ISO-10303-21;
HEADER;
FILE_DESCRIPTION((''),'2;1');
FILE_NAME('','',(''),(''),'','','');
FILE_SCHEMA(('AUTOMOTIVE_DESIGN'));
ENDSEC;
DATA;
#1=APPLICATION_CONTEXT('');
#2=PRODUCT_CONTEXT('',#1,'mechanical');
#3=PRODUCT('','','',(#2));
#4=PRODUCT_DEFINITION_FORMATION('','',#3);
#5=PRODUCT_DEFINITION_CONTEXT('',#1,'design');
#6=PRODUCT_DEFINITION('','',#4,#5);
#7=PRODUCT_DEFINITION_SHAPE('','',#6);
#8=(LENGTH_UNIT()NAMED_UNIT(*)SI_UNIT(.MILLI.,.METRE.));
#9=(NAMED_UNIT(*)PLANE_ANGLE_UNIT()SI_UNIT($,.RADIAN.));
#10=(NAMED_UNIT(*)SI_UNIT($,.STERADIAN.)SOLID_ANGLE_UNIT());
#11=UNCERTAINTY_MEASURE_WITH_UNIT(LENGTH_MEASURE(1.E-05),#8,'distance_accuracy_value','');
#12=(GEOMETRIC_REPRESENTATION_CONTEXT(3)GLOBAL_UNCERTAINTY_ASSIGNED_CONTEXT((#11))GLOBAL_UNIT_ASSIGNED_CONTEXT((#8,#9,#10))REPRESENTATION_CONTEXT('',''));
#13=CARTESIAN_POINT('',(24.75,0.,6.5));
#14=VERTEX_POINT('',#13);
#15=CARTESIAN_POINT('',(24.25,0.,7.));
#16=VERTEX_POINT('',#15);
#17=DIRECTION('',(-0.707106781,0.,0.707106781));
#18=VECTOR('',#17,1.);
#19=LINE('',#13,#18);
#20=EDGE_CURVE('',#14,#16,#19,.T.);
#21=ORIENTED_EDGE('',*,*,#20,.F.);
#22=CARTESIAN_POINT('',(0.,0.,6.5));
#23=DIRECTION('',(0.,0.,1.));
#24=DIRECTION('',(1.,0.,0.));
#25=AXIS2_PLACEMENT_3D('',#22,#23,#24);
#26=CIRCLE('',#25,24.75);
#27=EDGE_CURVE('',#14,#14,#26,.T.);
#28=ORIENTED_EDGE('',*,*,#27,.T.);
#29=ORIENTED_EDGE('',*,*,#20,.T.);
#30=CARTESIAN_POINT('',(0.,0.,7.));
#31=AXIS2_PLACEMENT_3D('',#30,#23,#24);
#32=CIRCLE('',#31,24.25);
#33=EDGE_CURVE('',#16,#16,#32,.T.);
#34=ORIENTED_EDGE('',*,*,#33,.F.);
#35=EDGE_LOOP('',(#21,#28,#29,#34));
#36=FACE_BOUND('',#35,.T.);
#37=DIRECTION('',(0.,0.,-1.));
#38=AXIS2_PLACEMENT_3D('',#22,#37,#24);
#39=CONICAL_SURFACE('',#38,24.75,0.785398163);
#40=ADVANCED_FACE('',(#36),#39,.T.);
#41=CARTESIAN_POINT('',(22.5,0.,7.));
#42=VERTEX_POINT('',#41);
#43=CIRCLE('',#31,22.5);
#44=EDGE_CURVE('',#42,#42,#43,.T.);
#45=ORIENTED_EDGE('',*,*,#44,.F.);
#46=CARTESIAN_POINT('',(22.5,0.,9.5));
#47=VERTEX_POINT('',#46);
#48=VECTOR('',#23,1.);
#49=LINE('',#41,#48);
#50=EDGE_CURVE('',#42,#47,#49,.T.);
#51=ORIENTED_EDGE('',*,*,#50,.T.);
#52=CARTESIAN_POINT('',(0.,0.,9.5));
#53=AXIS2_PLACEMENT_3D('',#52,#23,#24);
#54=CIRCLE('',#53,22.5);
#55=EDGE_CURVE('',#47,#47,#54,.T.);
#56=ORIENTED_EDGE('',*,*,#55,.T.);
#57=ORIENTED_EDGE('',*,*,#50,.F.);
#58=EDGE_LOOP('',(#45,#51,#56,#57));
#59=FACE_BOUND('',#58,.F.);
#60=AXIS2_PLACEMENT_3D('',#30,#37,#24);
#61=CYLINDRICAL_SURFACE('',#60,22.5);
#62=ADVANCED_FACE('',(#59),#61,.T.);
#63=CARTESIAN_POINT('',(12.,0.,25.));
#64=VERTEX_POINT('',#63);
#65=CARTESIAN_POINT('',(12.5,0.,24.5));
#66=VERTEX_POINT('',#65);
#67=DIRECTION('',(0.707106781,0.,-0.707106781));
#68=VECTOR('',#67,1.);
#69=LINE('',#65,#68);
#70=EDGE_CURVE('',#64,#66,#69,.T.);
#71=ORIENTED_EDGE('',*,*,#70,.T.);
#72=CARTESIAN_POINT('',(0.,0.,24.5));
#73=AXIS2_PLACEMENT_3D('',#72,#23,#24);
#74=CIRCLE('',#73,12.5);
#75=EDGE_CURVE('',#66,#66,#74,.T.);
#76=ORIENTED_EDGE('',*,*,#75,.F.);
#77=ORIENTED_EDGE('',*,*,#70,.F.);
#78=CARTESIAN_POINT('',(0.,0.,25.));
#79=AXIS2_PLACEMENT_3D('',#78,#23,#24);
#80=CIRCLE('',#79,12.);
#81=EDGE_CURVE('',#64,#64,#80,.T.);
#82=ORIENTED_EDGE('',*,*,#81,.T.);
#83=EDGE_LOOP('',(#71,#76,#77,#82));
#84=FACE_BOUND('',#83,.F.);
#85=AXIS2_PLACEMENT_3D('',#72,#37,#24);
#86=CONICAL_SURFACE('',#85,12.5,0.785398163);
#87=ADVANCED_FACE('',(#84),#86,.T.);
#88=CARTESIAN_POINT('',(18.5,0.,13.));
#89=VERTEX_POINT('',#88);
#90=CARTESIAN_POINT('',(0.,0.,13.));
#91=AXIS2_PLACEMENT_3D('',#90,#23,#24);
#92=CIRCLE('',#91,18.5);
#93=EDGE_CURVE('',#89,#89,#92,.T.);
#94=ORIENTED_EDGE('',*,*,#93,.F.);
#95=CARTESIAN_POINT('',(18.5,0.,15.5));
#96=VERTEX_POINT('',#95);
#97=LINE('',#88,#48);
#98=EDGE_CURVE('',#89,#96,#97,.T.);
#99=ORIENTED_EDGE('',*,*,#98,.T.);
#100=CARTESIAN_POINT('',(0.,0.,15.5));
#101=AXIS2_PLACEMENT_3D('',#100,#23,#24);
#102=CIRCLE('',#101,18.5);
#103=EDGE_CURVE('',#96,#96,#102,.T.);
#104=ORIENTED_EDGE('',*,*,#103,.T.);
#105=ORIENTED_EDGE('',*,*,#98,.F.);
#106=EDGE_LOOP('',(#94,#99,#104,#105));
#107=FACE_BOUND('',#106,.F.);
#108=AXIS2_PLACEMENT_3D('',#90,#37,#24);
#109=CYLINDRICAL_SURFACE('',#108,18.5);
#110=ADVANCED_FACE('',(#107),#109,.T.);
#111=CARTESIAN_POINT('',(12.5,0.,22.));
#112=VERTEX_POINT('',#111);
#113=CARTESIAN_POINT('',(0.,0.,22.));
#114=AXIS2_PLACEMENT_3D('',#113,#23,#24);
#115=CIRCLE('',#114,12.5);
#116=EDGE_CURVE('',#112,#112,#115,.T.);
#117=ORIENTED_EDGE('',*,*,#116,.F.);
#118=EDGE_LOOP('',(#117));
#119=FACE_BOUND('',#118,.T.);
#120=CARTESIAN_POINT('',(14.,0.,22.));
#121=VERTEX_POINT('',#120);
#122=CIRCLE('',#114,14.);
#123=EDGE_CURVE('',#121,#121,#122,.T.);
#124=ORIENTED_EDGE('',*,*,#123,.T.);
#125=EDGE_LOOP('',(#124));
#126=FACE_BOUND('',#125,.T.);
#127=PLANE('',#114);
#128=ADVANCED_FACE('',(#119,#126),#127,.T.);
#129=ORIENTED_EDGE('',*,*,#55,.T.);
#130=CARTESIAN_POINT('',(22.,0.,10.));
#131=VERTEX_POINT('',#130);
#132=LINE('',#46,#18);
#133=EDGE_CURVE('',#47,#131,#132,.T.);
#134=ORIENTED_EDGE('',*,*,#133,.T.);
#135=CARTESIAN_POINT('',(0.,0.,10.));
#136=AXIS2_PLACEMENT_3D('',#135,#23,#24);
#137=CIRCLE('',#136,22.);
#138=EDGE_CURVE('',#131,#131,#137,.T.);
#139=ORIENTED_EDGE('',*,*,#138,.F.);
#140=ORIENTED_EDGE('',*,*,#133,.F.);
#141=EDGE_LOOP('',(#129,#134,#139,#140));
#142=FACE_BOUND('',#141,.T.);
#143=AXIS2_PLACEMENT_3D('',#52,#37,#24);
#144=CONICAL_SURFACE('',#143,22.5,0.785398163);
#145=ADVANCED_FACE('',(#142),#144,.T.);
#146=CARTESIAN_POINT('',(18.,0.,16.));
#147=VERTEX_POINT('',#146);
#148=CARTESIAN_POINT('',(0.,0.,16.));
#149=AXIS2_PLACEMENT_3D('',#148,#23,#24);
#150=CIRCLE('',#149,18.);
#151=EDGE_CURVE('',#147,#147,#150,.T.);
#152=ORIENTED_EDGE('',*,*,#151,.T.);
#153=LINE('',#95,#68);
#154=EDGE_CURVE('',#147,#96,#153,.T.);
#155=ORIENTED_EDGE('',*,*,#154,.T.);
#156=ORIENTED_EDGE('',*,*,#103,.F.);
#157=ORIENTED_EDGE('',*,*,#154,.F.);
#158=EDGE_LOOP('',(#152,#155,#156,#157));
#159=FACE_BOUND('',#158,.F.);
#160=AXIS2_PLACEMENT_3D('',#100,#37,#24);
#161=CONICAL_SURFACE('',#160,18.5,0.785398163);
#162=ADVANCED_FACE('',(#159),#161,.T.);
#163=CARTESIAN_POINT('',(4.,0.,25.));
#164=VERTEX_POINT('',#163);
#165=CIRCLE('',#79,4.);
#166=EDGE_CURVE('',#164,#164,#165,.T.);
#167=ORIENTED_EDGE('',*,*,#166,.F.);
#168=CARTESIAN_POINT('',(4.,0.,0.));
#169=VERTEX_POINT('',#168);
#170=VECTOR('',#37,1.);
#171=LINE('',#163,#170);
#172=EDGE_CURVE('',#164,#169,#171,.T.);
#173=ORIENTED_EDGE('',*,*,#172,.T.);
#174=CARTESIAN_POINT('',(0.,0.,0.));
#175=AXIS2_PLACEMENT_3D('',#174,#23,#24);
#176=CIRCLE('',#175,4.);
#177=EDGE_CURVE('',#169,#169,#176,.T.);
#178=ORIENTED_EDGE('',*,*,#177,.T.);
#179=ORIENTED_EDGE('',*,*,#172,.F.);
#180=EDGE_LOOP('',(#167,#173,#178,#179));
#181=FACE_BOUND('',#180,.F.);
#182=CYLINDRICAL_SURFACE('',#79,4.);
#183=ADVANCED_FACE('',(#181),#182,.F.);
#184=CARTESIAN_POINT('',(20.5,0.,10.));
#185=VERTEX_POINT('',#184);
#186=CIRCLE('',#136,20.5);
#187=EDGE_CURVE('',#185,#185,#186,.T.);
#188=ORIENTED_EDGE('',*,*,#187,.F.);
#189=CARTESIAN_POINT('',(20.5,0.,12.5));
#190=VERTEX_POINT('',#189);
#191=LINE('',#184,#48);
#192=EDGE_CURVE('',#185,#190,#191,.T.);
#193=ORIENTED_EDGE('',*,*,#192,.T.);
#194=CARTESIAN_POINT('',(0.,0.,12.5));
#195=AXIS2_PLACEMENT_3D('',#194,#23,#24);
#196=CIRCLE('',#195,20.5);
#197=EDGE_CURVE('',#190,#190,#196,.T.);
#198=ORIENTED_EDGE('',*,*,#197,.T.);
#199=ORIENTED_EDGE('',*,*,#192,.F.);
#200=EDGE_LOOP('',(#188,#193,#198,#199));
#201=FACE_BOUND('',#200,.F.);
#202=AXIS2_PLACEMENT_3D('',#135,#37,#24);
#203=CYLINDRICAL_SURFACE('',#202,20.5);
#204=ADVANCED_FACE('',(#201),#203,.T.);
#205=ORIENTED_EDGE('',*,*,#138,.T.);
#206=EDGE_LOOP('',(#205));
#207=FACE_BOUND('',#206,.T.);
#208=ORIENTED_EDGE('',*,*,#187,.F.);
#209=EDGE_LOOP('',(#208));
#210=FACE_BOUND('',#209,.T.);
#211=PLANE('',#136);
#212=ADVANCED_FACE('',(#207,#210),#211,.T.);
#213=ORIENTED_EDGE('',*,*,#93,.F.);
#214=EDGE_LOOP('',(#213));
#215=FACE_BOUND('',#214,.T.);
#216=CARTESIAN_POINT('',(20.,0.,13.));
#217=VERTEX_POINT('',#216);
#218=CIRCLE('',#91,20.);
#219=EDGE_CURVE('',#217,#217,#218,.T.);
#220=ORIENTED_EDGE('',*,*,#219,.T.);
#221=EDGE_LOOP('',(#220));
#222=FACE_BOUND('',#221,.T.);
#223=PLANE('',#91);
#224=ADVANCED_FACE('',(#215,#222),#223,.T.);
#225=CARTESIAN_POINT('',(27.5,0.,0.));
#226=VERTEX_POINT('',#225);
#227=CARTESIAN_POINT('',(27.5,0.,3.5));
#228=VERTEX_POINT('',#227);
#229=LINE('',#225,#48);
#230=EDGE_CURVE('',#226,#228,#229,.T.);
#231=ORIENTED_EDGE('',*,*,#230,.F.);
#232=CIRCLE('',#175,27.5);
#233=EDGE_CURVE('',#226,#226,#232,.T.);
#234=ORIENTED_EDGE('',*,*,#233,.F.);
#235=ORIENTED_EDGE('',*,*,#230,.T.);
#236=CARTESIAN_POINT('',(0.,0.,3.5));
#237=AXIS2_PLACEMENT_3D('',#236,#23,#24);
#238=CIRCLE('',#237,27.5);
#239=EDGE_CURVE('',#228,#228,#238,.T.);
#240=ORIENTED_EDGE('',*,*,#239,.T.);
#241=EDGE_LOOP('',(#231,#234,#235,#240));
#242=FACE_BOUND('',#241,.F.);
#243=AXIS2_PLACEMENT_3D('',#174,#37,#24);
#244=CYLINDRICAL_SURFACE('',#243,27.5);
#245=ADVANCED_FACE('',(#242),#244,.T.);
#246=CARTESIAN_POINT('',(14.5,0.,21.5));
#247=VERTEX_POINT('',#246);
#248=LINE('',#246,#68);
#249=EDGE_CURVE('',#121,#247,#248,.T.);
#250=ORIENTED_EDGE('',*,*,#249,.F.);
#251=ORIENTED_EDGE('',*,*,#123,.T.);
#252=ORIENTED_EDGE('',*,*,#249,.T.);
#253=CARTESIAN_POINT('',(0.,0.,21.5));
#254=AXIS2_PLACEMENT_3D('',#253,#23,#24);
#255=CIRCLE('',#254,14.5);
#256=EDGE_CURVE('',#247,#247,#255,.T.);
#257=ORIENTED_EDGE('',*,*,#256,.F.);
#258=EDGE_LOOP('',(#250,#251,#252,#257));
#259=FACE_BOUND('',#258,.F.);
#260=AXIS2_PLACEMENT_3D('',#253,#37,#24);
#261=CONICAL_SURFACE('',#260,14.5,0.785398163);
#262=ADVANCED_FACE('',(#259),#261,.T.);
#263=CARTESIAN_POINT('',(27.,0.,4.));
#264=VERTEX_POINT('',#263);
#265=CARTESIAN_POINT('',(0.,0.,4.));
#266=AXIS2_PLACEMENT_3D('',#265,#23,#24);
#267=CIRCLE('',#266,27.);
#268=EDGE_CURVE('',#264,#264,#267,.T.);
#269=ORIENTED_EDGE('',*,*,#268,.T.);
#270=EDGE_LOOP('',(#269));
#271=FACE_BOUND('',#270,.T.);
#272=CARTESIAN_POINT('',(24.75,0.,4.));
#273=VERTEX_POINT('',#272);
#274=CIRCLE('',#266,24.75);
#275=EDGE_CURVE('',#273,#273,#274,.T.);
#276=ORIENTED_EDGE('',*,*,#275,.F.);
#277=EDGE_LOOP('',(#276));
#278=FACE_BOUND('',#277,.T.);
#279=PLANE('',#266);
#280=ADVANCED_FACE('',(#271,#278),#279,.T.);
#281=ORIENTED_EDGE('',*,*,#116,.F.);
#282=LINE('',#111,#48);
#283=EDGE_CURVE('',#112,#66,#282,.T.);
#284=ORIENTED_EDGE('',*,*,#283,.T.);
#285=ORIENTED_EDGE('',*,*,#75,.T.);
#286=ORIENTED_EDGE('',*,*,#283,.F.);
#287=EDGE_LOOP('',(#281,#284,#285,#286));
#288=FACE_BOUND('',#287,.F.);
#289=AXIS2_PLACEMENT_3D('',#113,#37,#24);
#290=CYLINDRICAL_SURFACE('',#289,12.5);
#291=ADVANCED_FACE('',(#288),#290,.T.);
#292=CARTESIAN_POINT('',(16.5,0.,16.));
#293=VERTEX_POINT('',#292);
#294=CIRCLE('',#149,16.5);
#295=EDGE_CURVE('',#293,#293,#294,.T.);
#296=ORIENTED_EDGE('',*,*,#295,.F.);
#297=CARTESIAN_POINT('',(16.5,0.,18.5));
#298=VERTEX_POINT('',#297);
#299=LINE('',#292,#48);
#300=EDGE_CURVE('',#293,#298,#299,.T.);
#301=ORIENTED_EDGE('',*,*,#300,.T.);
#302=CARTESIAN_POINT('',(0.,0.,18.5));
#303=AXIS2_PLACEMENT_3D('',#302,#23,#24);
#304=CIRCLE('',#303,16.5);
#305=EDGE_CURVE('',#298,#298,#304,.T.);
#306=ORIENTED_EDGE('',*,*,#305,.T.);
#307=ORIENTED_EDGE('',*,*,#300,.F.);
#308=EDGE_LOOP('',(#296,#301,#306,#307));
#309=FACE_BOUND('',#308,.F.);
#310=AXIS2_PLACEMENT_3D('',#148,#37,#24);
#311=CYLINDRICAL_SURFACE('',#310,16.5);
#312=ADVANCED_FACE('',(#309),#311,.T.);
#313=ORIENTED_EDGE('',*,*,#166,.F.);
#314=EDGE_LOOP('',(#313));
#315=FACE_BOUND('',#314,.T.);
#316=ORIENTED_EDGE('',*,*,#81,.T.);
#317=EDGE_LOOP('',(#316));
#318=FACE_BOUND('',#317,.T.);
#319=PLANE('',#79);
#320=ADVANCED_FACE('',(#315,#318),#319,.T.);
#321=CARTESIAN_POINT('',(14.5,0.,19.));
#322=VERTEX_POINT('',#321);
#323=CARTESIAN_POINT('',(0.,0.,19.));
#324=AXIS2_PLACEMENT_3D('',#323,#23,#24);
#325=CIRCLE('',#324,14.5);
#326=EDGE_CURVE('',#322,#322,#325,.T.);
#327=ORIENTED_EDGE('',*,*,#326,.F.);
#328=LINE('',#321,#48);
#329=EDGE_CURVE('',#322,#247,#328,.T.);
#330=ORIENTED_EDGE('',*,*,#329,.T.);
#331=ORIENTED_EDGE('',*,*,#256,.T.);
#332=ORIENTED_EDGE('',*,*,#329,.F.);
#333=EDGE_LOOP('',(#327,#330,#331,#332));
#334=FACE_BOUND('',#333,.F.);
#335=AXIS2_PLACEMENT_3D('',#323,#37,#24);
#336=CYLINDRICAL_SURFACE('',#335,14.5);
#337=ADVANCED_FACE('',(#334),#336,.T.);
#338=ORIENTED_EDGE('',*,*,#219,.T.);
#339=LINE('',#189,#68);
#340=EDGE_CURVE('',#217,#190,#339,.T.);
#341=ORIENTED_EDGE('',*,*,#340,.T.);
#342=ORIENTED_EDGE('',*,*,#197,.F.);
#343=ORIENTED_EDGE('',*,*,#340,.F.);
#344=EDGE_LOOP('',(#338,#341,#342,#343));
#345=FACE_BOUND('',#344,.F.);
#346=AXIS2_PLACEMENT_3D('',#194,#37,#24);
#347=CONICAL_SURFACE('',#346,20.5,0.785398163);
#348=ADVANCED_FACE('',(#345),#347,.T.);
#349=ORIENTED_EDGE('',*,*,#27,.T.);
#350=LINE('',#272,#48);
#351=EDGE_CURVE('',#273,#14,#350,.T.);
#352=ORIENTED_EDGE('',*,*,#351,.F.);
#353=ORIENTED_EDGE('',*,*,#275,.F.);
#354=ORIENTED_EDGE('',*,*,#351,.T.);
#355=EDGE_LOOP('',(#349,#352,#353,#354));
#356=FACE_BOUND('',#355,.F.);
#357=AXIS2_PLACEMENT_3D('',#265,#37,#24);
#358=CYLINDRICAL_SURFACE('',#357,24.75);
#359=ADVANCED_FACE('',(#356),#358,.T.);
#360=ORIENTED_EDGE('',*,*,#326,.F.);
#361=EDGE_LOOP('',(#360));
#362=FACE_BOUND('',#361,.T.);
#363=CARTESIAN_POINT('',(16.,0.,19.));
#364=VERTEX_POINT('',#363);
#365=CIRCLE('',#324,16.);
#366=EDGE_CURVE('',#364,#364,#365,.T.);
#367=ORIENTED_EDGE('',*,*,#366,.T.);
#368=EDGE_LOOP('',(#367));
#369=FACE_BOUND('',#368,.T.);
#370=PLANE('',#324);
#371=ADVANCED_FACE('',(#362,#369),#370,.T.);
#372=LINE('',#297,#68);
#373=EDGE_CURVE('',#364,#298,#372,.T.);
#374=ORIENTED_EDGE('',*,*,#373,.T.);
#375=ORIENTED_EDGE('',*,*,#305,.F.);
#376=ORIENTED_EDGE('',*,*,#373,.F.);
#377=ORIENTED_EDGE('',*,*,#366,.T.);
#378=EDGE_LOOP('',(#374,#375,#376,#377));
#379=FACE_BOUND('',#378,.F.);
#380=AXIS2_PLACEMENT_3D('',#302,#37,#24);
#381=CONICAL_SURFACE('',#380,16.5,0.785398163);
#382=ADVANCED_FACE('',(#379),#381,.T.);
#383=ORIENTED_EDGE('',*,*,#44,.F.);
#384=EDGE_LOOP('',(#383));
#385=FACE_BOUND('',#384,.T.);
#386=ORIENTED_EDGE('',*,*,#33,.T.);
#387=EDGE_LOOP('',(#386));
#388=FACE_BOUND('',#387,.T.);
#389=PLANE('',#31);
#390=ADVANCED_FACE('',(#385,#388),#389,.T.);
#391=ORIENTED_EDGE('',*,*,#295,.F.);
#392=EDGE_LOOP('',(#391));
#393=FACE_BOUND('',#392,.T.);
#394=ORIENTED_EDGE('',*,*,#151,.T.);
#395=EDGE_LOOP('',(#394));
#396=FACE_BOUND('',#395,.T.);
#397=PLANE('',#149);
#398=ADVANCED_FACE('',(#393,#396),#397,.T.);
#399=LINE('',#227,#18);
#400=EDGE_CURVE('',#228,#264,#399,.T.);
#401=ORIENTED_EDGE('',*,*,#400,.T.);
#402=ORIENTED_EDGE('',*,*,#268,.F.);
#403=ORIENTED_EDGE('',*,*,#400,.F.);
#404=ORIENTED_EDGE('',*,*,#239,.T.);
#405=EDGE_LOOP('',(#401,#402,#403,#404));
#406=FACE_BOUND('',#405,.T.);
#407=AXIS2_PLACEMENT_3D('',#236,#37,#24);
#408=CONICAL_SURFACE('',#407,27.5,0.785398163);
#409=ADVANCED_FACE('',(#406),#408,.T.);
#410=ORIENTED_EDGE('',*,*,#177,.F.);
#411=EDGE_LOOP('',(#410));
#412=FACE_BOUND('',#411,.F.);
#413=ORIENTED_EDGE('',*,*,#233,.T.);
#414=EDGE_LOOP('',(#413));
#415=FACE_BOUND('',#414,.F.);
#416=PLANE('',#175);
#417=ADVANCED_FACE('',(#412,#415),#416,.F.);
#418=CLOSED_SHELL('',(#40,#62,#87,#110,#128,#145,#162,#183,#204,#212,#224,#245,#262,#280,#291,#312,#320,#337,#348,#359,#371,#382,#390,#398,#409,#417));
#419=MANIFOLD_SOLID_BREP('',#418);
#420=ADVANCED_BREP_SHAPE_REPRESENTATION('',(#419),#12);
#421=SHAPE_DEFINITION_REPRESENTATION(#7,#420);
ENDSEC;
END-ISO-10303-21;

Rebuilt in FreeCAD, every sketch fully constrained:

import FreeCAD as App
import Part
import Sketcher


def edges_at(feature, points):
    """Names of the edges that pass closest to the given points."""
    edges = feature.Shape.Edges
    near = lambda p: min(range(len(edges)), key=lambda i: edges[i].distToShape(Part.Vertex(*p))[0])
    return sorted({f"Edge{near(p) + 1}" for p in points})

doc = App.newDocument("Part")
body = doc.addObject("PartDesign::Body", "Body")

sketch1 = body.newObject("Sketcher::SketchObject", "Sketch")
sketch1.AttachmentSupport = (doc.getObject("XY_Plane"), [""])
sketch1.MapMode = "FlatFace"
sketch1.addGeometry(Part.Circle(App.Vector(0, 0, 0), App.Vector(0, 0, 1), 28), False)
sketch1.addConstraint(Sketcher.Constraint("Coincident", 0, 3, -1, 1))
sketch1.addConstraint(Sketcher.Constraint("Diameter", 0, 55.0))
pad1 = body.newObject("PartDesign::Pad", "Pad")
pad1.Profile = sketch1
pad1.Length = 4

sketch2 = body.newObject("Sketcher::SketchObject", "Sketch001")
sketch2.AttachmentSupport = (doc.getObject("XY_Plane"), [""])
sketch2.MapMode = "FlatFace"
sketch2.AttachmentOffset = App.Placement(App.Vector(0, 0, 4), App.Rotation())
sketch2.addGeometry(Part.Circle(App.Vector(0, 0, 0), App.Vector(0, 0, 1), 25), False)
sketch2.addConstraint(Sketcher.Constraint("Coincident", 0, 3, -1, 1))
sketch2.addConstraint(Sketcher.Constraint("Diameter", 0, 49.5))
pad2 = body.newObject("PartDesign::Pad", "Pad001")
pad2.Profile = sketch2
pad2.Length = 3

sketch3 = body.newObject("Sketcher::SketchObject", "Sketch002")
sketch3.AttachmentSupport = (doc.getObject("XY_Plane"), [""])
sketch3.MapMode = "FlatFace"
sketch3.AttachmentOffset = App.Placement(App.Vector(0, 0, 7), App.Rotation())
sketch3.addGeometry(Part.Circle(App.Vector(0, 0, 0), App.Vector(0, 0, 1), 22), False)
sketch3.addConstraint(Sketcher.Constraint("Coincident", 0, 3, -1, 1))
sketch3.addConstraint(Sketcher.Constraint("Diameter", 0, 45.0))
pad3 = body.newObject("PartDesign::Pad", "Pad002")
pad3.Profile = sketch3
pad3.Length = 3

sketch4 = body.newObject("Sketcher::SketchObject", "Sketch003")
sketch4.AttachmentSupport = (doc.getObject("XY_Plane"), [""])
sketch4.MapMode = "FlatFace"
sketch4.AttachmentOffset = App.Placement(App.Vector(0, 0, 10), App.Rotation())
sketch4.addGeometry(Part.Circle(App.Vector(0, 0, 0), App.Vector(0, 0, 1), 20), False)
sketch4.addConstraint(Sketcher.Constraint("Coincident", 0, 3, -1, 1))
sketch4.addConstraint(Sketcher.Constraint("Diameter", 0, 41.0))
pad4 = body.newObject("PartDesign::Pad", "Pad003")
pad4.Profile = sketch4
pad4.Length = 3

sketch5 = body.newObject("Sketcher::SketchObject", "Sketch004")
sketch5.AttachmentSupport = (doc.getObject("XY_Plane"), [""])
sketch5.MapMode = "FlatFace"
sketch5.AttachmentOffset = App.Placement(App.Vector(0, 0, 13), App.Rotation())
sketch5.addGeometry(Part.Circle(App.Vector(0, 0, 0), App.Vector(0, 0, 1), 18), False)
sketch5.addConstraint(Sketcher.Constraint("Coincident", 0, 3, -1, 1))
sketch5.addConstraint(Sketcher.Constraint("Diameter", 0, 37.0))
pad5 = body.newObject("PartDesign::Pad", "Pad004")
pad5.Profile = sketch5
pad5.Length = 3

sketch6 = body.newObject("Sketcher::SketchObject", "Sketch005")
sketch6.AttachmentSupport = (doc.getObject("XY_Plane"), [""])
sketch6.MapMode = "FlatFace"
sketch6.AttachmentOffset = App.Placement(App.Vector(0, 0, 16), App.Rotation())
sketch6.addGeometry(Part.Circle(App.Vector(0, 0, 0), App.Vector(0, 0, 1), 16), False)
sketch6.addConstraint(Sketcher.Constraint("Coincident", 0, 3, -1, 1))
sketch6.addConstraint(Sketcher.Constraint("Diameter", 0, 33.0))
pad6 = body.newObject("PartDesign::Pad", "Pad005")
pad6.Profile = sketch6
pad6.Length = 3

sketch7 = body.newObject("Sketcher::SketchObject", "Sketch006")
sketch7.AttachmentSupport = (doc.getObject("XY_Plane"), [""])
sketch7.MapMode = "FlatFace"
sketch7.AttachmentOffset = App.Placement(App.Vector(0, 0, 19), App.Rotation())
sketch7.addGeometry(Part.Circle(App.Vector(0, 0, 0), App.Vector(0, 0, 1), 14), False)
sketch7.addConstraint(Sketcher.Constraint("Coincident", 0, 3, -1, 1))
sketch7.addConstraint(Sketcher.Constraint("Diameter", 0, 29.0))
pad7 = body.newObject("PartDesign::Pad", "Pad006")
pad7.Profile = sketch7
pad7.Length = 3

sketch8 = body.newObject("Sketcher::SketchObject", "Sketch007")
sketch8.AttachmentSupport = (doc.getObject("XY_Plane"), [""])
sketch8.MapMode = "FlatFace"
sketch8.AttachmentOffset = App.Placement(App.Vector(0, 0, 22), App.Rotation())
sketch8.addGeometry(Part.Circle(App.Vector(0, 0, 0), App.Vector(0, 0, 1), 12), False)
sketch8.addConstraint(Sketcher.Constraint("Coincident", 0, 3, -1, 1))
sketch8.addConstraint(Sketcher.Constraint("Diameter", 0, 25.0))
pad8 = body.newObject("PartDesign::Pad", "Pad007")
pad8.Profile = sketch8
pad8.Length = 3

sketch9 = body.newObject("Sketcher::SketchObject", "Sketch008")
sketch9.AttachmentSupport = (doc.getObject("XY_Plane"), [""])
sketch9.MapMode = "FlatFace"
sketch9.AttachmentOffset = App.Placement(App.Vector(0, 0, 25), App.Rotation())
sketch9.addGeometry(Part.Circle(App.Vector(0, 0, 0), App.Vector(0, 0, 1), 4), False)
sketch9.addConstraint(Sketcher.Constraint("Coincident", 0, 3, -1, 1))
sketch9.addConstraint(Sketcher.Constraint("Diameter", 0, 8.0))
pocket1 = body.newObject("PartDesign::Pocket", "Pocket")
pocket1.Profile = sketch9
pocket1.Length = 35
doc.recompute()

chamfer = body.newObject("PartDesign::Chamfer", "Chamfer")
chamfer.Base = (pocket1, edges_at(pocket1, [(-12.5, 0, 25)]))
chamfer.Size = 0.5
doc.recompute()

chamfer2 = body.newObject("PartDesign::Chamfer", "Chamfer001")
chamfer2.Base = (chamfer, edges_at(chamfer, [
    (-14.5, 0, 22),
    (-16.5, 0, 19),
    (-18.5, 0, 16),
    (-20.5, 0, 13),
    (-22.5, 0, 10),
    (-24.75, 0, 7),
    (-27.5, 0, 4),
]))
chamfer2.Size = 0.5

doc.recompute()
